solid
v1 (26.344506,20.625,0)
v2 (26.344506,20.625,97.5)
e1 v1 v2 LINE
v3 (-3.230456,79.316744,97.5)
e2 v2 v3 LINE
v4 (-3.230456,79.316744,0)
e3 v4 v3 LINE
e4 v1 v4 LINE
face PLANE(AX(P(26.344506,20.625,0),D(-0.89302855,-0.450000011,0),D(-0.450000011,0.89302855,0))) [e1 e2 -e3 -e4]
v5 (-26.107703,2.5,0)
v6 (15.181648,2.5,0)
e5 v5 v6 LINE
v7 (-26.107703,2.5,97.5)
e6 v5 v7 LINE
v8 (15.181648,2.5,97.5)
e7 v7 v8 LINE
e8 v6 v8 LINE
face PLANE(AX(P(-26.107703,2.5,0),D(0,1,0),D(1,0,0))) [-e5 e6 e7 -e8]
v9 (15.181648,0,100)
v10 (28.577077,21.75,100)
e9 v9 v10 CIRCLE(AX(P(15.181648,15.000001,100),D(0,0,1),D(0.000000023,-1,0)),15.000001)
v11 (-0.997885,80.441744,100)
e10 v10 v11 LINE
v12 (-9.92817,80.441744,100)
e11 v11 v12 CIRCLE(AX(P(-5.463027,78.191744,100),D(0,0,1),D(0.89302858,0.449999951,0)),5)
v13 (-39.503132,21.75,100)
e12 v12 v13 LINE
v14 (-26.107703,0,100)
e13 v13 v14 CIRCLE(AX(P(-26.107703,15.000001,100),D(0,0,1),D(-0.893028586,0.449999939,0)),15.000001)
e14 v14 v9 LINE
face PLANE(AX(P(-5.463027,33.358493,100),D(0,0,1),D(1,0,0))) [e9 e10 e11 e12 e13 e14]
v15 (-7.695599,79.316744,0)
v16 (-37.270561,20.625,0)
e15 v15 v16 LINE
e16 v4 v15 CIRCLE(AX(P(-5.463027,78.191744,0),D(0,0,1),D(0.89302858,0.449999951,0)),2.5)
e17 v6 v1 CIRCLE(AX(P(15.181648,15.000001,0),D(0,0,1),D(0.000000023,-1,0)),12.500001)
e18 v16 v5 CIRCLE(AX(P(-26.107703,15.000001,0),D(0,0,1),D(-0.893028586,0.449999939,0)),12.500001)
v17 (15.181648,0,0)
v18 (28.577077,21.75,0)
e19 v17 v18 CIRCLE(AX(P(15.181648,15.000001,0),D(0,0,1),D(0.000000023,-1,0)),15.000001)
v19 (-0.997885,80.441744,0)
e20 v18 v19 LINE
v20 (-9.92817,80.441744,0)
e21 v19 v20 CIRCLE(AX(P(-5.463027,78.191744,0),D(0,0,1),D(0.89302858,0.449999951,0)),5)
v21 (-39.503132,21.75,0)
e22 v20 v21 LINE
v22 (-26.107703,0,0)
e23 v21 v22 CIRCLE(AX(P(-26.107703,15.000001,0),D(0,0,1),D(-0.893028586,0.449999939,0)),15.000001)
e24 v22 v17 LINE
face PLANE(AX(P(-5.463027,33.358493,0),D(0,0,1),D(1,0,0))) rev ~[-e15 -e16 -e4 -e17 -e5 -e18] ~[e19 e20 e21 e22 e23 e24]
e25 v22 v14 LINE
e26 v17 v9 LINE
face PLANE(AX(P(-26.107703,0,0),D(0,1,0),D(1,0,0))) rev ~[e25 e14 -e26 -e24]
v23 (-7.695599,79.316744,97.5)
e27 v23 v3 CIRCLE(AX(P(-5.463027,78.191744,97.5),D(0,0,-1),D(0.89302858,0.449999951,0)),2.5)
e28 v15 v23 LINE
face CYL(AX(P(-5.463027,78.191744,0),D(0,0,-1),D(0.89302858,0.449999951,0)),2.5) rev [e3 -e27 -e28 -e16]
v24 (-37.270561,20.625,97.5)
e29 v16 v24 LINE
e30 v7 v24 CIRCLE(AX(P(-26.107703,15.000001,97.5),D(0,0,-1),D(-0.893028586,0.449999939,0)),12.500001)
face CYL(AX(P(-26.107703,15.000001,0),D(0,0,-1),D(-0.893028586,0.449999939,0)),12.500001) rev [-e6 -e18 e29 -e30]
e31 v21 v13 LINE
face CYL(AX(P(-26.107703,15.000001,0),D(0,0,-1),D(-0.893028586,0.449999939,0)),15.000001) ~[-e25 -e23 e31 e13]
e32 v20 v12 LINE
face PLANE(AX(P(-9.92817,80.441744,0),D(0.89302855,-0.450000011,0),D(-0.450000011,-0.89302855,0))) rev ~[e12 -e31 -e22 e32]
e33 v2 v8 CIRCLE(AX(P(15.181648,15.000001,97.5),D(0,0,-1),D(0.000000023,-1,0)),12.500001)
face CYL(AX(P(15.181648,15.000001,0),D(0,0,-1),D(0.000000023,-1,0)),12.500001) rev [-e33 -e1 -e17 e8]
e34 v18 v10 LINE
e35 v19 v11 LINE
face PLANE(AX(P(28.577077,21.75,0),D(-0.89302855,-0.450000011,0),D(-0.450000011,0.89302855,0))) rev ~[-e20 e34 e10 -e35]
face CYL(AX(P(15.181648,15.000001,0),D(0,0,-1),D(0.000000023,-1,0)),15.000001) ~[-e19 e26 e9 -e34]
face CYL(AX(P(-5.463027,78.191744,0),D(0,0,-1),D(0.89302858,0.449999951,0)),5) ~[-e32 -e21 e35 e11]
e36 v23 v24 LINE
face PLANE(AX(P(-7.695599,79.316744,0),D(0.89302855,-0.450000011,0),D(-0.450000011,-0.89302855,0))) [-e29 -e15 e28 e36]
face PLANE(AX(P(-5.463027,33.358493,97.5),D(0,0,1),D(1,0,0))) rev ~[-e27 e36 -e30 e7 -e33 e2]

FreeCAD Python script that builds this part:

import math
import FreeCAD as App
import Part
import Sketcher
from FreeCAD import Vector
Q = App.Units.Quantity


def faces_at(feature, points):
    """Names of the faces that lie closest to the given points."""
    faces = feature.Shape.Faces
    near = lambda p: min(range(len(faces)), key=lambda i: faces[i].distToShape(Part.Vertex(*p))[0])
    return sorted({f"Face{near(p) + 1}" for p in points})

doc = App.newDocument("Part")
body = doc.addObject("PartDesign::Body", "Body")

# Sketch on XY plane
sketch1 = body.newObject("Sketcher::SketchObject", "Sketch")
sketch1.AttachmentSupport = (doc.getObject("XY_Plane"), [""])
sketch1.MapMode = "FlatFace"
sketch1.addGeometry([
    Part.ArcOfCircle(Part.Circle(Vector(-5.463027, 78.191744, 0), Vector(0, 0, 1), 5), math.radians(26.743681), math.radians(153.256319)),  # 0
    Part.LineSegment(Vector(-9.92817, 80.441744, 0), Vector(-39.503132, 21.75, 0)),  # 1
    Part.ArcOfCircle(Part.Circle(Vector(-26.107703, 15.000001, 0), Vector(0, 0, 1), 15.000001), math.radians(153.25632), math.radians(269.999999)),  # 2
    Part.LineSegment(Vector(-26.107703, 0, 0), Vector(15.181648, 0, 0)),  # 3
    Part.ArcOfCircle(Part.Circle(Vector(15.181648, 15.000001, 0), Vector(0, 0, 1), 15.000001), math.radians(-89.999999), math.radians(26.74368)),  # 4
    Part.LineSegment(Vector(28.577077, 21.75, 0), Vector(-0.997885, 80.441744, 0)),  # 5
], False)
sketch1.addConstraint([
    Sketcher.Constraint("Tangent", 0, 2, 1, 1),
    Sketcher.Constraint("Tangent", 1, 2, 2, 1),
    Sketcher.Constraint("Tangent", 2, 2, 3, 1),
    Sketcher.Constraint("Tangent", 3, 2, 4, 1),
    Sketcher.Constraint("Tangent", 4, 2, 5, 1),
    Sketcher.Constraint("Tangent", 5, 2, 0, 1),
    Sketcher.Constraint("Horizontal", 3),
    Sketcher.Constraint("Equal", 2, 4),
    Sketcher.Constraint("PointOnObject", 2, 2, -1),
    Sketcher.Constraint("Horizontal", 1, 2, 4, 2),
    Sketcher.Constraint("Radius", 0, Q("5 mm")),
    Sketcher.Constraint("Radius", 2, Q("15.000001 mm")),
    Sketcher.Constraint("DistanceY", -1, 1, 1, 2, Q("21.75 mm")),
    Sketcher.Constraint("DistanceX", 3, 1, 3, 2, Q("41.289351 mm")),
    Sketcher.Constraint("DistanceX", 0, 2, -1, 1, Q("9.92817 mm")),
])
pad1 = body.newObject("PartDesign::Pad", "Pad")
pad1.Profile = sketch1
pad1.Length = 100
doc.recompute()

thickness = body.newObject("PartDesign::Thickness", "Thickness")
thickness.Base = (pad1, faces_at(pad1, [(-5.463, 41.596, 0)]))
thickness.Value = 2.5
thickness.Reversed = True
thickness.Join = "Arc"

doc.recompute()
